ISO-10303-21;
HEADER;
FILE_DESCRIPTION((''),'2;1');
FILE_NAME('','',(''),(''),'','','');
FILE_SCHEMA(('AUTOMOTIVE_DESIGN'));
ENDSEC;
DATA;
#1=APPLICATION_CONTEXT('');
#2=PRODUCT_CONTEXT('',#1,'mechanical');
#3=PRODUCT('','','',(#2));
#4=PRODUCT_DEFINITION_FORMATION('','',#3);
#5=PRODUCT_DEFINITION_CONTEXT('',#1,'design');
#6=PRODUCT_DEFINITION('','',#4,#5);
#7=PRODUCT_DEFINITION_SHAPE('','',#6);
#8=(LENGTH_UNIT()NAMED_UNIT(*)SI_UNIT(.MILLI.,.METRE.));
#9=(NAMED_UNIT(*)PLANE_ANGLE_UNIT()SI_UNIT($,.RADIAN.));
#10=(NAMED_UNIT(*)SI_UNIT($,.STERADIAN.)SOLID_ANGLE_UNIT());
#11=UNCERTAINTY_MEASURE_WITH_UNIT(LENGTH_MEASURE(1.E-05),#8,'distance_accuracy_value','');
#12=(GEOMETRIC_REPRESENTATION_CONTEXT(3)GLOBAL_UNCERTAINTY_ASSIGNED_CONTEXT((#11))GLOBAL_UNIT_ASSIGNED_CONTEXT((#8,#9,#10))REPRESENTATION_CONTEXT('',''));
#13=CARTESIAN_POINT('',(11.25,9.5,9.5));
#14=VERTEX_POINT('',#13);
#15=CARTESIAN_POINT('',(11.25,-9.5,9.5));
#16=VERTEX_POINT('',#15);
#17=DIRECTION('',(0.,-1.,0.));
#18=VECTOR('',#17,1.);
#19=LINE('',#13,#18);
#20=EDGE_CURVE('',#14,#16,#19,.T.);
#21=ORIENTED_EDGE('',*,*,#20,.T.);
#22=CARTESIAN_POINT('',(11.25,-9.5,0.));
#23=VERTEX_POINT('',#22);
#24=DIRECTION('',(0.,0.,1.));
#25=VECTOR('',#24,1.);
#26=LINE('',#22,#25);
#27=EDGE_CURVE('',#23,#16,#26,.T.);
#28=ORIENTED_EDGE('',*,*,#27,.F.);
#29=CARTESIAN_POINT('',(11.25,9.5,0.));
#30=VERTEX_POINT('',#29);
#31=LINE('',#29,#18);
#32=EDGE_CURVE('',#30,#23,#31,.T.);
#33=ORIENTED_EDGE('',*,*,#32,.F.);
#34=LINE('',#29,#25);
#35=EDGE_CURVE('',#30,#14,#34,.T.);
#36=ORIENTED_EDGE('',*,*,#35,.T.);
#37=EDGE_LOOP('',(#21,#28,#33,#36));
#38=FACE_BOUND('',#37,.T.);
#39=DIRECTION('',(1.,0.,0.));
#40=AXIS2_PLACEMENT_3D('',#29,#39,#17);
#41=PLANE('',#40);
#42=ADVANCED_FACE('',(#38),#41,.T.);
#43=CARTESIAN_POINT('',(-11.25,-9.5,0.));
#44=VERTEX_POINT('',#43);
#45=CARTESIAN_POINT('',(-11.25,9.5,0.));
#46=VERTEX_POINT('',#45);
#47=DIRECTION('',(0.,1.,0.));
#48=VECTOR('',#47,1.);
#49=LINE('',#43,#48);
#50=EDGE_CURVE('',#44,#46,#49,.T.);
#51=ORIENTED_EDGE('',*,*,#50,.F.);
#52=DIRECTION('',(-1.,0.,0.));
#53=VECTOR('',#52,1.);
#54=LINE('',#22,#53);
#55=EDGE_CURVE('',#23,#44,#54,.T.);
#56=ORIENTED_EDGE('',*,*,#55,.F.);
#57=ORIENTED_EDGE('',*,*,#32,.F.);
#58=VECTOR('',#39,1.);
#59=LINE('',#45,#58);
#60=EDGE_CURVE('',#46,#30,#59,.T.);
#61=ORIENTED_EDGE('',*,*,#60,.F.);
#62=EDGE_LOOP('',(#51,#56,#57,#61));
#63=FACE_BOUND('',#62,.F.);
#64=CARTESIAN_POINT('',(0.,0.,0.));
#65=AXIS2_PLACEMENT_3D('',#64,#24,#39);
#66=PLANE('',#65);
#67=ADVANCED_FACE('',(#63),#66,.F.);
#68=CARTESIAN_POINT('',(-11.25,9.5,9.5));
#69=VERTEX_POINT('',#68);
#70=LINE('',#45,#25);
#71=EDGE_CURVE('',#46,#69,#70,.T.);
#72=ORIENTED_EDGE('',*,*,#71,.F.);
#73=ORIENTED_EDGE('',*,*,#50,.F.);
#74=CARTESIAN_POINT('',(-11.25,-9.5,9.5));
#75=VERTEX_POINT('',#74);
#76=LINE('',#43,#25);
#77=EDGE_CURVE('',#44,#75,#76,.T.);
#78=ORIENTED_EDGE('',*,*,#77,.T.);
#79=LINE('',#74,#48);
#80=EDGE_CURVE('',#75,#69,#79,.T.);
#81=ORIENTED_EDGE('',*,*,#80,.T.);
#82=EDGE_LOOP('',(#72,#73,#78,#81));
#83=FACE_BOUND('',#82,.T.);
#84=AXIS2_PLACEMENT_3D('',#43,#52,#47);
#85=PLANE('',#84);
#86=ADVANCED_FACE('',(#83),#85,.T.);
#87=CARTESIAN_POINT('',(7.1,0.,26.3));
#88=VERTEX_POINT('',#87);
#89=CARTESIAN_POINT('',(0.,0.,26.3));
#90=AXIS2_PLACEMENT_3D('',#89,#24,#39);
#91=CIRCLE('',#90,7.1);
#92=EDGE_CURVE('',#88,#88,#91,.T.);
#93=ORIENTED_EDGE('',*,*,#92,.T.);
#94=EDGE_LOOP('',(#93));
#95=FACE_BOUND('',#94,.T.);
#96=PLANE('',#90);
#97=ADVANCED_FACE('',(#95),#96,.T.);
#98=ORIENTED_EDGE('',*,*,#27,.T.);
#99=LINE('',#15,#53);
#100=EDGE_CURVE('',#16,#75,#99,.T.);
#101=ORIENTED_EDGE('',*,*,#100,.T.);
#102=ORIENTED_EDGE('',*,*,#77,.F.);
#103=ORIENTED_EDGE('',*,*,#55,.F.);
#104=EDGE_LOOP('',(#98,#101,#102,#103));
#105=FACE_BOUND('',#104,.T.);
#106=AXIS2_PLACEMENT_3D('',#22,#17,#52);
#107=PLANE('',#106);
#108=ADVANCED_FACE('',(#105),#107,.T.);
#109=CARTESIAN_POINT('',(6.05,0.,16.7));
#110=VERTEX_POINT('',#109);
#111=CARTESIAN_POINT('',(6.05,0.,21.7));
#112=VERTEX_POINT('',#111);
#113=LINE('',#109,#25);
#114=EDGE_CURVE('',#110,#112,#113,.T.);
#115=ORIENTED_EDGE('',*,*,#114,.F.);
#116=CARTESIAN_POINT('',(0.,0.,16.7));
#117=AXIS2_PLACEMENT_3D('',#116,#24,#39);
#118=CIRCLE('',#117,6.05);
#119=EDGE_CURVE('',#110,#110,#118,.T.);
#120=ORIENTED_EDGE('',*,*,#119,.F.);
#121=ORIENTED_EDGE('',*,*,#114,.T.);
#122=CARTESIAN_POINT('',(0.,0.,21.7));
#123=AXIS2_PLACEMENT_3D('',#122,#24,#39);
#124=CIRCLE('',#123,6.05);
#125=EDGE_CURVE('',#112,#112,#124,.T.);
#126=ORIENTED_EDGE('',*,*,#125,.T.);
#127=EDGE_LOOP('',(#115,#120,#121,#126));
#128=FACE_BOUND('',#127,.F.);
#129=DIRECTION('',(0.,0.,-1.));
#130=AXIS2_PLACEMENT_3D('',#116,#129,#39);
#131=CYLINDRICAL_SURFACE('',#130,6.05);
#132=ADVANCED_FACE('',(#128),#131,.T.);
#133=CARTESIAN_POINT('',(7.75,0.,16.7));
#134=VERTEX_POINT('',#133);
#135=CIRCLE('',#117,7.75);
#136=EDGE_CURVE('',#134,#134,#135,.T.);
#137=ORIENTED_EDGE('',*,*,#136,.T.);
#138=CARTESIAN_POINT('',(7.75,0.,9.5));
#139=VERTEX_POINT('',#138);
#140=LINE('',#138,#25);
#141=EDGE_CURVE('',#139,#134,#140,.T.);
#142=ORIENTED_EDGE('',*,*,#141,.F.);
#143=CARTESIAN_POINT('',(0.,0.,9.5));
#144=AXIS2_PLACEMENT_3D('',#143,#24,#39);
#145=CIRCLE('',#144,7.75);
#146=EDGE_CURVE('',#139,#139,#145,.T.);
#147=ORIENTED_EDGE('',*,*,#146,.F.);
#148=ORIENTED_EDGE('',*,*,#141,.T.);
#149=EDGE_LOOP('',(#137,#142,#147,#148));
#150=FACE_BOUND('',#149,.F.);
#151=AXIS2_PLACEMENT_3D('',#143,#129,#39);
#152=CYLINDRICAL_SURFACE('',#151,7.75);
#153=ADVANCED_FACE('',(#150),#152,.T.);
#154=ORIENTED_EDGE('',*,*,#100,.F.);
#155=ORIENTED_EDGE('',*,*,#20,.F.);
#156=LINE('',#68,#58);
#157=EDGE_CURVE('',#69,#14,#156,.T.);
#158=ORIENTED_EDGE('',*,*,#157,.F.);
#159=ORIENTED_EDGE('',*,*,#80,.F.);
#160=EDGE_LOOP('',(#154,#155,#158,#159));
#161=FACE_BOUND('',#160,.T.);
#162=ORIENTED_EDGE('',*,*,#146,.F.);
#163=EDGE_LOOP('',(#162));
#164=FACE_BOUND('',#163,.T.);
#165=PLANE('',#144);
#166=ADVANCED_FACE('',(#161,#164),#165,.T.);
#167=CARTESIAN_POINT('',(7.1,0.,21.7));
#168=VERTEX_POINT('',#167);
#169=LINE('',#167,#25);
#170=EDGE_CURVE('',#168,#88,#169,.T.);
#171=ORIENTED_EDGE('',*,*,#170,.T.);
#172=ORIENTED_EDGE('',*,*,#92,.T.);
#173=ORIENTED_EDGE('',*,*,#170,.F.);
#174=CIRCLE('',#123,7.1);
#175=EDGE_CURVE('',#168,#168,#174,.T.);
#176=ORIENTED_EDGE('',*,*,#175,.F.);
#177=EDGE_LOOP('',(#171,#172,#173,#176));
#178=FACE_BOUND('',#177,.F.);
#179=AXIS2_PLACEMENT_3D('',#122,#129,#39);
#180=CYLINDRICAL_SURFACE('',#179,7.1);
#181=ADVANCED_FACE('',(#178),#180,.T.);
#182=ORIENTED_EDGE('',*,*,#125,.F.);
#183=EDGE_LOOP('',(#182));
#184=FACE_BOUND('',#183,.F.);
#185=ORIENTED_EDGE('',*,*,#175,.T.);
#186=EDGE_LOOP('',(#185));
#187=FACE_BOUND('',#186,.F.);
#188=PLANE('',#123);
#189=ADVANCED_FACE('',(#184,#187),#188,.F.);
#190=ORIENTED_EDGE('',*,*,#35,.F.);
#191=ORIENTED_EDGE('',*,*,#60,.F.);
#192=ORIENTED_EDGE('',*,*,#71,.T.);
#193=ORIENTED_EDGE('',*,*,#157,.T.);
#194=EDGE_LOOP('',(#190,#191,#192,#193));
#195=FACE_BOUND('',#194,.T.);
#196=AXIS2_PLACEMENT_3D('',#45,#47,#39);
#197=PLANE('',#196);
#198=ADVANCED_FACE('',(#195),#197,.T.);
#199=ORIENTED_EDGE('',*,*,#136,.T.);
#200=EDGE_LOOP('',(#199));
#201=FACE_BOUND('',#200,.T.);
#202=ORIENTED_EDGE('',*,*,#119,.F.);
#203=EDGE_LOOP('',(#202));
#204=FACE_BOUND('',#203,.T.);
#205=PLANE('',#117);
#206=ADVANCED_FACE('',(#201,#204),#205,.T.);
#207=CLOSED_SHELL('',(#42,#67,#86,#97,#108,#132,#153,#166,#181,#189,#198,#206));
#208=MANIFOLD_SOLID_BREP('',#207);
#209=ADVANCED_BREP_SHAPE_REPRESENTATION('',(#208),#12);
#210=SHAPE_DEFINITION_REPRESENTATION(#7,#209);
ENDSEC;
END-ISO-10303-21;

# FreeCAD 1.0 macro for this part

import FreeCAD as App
import Part
import Sketcher
Q = App.Units.Quantity

doc = App.newDocument("Part")
body = doc.addObject("PartDesign::Body", "Body")

sketch1 = body.newObject("Sketcher::SketchObject", "Sketch")
sketch1.AttachmentSupport = (doc.getObject("XY_Plane"), [""])
sketch1.MapMode = "FlatFace"
sketch1.addGeometry([
    Part.LineSegment(App.Vector(11, 10, 0), App.Vector(-11, 10, 0)),
    Part.LineSegment(App.Vector(-11, 10, 0), App.Vector(-11, -10, 0)),
    Part.LineSegment(App.Vector(-11, -10, 0), App.Vector(11, -10, 0)),
    Part.LineSegment(App.Vector(11, -10, 0), App.Vector(11, 10, 0)),
], False)
sketch1.addConstraint([
    Sketcher.Constraint("Coincident", 0, 2, 1, 1),
    Sketcher.Constraint("Coincident", 1, 2, 2, 1),
    Sketcher.Constraint("Coincident", 2, 2, 3, 1),
    Sketcher.Constraint("Coincident", 3, 2, 0, 1),
    Sketcher.Constraint("Horizontal", 0),
    Sketcher.Constraint("Vertical", 1),
    Sketcher.Constraint("Horizontal", 2),
    Sketcher.Constraint("Vertical", 3),
    Sketcher.Constraint("Symmetric", 0, 2, 2, 2, -1, 1),
    Sketcher.Constraint("DistanceY", 1, 2, 1, 1, Q("19 mm")),
    Sketcher.Constraint("DistanceX", 0, 2, 0, 1, Q("22.5 mm")),
])
pad1 = body.newObject("PartDesign::Pad", "Pad")
pad1.Profile = sketch1
pad1.Length = 9.5

sketch2 = body.newObject("Sketcher::SketchObject", "Sketch001")
sketch2.AttachmentSupport = (doc.getObject("XY_Plane"), [""])
sketch2.MapMode = "FlatFace"
sketch2.AttachmentOffset = App.Placement(App.Vector(0, 0, 9.5), App.Rotation())
sketch2.addGeometry(Part.Circle(App.Vector(0, 0, 0), App.Vector(0, 0, 1), 8), False)
sketch2.addConstraint([
    Sketcher.Constraint("Coincident", 0, 3, -1, 1),
    Sketcher.Constraint("Diameter", 0, Q("15.5 mm")),
])
pad2 = body.newObject("PartDesign::Pad", "Pad001")
pad2.Profile = sketch2
pad2.Length = 7.2

sketch3 = body.newObject("Sketcher::SketchObject", "Sketch002")
sketch3.AttachmentSupport = (doc.getObject("XY_Plane"), [""])
sketch3.MapMode = "FlatFace"
sketch3.AttachmentOffset = App.Placement(App.Vector(0, 0, 16.7), App.Rotation())
sketch3.addGeometry(Part.Circle(App.Vector(0, 0, 0), App.Vector(0, 0, 1), 6), False)
sketch3.addConstraint([
    Sketcher.Constraint("Coincident", 0, 3, -1, 1),
    Sketcher.Constraint("Diameter", 0, Q("12.1 mm")),
])
pad3 = body.newObject("PartDesign::Pad", "Pad002")
pad3.Profile = sketch3
pad3.Length = 5

sketch4 = body.newObject("Sketcher::SketchObject", "Sketch003")
sketch4.AttachmentSupport = (doc.getObject("XY_Plane"), [""])
sketch4.MapMode = "FlatFace"
sketch4.AttachmentOffset = App.Placement(App.Vector(0, 0, 21.7), App.Rotation())
sketch4.addGeometry(Part.Circle(App.Vector(0, 0, 0), App.Vector(0, 0, 1), 7), False)
sketch4.addConstraint([
    Sketcher.Constraint("Coincident", 0, 3, -1, 1),
    Sketcher.Constraint("Diameter", 0, Q("14.2 mm")),
])
pad4 = body.newObject("PartDesign::Pad", "Pad003")
pad4.Profile = sketch4
pad4.Length = 4.6

doc.recompute()
